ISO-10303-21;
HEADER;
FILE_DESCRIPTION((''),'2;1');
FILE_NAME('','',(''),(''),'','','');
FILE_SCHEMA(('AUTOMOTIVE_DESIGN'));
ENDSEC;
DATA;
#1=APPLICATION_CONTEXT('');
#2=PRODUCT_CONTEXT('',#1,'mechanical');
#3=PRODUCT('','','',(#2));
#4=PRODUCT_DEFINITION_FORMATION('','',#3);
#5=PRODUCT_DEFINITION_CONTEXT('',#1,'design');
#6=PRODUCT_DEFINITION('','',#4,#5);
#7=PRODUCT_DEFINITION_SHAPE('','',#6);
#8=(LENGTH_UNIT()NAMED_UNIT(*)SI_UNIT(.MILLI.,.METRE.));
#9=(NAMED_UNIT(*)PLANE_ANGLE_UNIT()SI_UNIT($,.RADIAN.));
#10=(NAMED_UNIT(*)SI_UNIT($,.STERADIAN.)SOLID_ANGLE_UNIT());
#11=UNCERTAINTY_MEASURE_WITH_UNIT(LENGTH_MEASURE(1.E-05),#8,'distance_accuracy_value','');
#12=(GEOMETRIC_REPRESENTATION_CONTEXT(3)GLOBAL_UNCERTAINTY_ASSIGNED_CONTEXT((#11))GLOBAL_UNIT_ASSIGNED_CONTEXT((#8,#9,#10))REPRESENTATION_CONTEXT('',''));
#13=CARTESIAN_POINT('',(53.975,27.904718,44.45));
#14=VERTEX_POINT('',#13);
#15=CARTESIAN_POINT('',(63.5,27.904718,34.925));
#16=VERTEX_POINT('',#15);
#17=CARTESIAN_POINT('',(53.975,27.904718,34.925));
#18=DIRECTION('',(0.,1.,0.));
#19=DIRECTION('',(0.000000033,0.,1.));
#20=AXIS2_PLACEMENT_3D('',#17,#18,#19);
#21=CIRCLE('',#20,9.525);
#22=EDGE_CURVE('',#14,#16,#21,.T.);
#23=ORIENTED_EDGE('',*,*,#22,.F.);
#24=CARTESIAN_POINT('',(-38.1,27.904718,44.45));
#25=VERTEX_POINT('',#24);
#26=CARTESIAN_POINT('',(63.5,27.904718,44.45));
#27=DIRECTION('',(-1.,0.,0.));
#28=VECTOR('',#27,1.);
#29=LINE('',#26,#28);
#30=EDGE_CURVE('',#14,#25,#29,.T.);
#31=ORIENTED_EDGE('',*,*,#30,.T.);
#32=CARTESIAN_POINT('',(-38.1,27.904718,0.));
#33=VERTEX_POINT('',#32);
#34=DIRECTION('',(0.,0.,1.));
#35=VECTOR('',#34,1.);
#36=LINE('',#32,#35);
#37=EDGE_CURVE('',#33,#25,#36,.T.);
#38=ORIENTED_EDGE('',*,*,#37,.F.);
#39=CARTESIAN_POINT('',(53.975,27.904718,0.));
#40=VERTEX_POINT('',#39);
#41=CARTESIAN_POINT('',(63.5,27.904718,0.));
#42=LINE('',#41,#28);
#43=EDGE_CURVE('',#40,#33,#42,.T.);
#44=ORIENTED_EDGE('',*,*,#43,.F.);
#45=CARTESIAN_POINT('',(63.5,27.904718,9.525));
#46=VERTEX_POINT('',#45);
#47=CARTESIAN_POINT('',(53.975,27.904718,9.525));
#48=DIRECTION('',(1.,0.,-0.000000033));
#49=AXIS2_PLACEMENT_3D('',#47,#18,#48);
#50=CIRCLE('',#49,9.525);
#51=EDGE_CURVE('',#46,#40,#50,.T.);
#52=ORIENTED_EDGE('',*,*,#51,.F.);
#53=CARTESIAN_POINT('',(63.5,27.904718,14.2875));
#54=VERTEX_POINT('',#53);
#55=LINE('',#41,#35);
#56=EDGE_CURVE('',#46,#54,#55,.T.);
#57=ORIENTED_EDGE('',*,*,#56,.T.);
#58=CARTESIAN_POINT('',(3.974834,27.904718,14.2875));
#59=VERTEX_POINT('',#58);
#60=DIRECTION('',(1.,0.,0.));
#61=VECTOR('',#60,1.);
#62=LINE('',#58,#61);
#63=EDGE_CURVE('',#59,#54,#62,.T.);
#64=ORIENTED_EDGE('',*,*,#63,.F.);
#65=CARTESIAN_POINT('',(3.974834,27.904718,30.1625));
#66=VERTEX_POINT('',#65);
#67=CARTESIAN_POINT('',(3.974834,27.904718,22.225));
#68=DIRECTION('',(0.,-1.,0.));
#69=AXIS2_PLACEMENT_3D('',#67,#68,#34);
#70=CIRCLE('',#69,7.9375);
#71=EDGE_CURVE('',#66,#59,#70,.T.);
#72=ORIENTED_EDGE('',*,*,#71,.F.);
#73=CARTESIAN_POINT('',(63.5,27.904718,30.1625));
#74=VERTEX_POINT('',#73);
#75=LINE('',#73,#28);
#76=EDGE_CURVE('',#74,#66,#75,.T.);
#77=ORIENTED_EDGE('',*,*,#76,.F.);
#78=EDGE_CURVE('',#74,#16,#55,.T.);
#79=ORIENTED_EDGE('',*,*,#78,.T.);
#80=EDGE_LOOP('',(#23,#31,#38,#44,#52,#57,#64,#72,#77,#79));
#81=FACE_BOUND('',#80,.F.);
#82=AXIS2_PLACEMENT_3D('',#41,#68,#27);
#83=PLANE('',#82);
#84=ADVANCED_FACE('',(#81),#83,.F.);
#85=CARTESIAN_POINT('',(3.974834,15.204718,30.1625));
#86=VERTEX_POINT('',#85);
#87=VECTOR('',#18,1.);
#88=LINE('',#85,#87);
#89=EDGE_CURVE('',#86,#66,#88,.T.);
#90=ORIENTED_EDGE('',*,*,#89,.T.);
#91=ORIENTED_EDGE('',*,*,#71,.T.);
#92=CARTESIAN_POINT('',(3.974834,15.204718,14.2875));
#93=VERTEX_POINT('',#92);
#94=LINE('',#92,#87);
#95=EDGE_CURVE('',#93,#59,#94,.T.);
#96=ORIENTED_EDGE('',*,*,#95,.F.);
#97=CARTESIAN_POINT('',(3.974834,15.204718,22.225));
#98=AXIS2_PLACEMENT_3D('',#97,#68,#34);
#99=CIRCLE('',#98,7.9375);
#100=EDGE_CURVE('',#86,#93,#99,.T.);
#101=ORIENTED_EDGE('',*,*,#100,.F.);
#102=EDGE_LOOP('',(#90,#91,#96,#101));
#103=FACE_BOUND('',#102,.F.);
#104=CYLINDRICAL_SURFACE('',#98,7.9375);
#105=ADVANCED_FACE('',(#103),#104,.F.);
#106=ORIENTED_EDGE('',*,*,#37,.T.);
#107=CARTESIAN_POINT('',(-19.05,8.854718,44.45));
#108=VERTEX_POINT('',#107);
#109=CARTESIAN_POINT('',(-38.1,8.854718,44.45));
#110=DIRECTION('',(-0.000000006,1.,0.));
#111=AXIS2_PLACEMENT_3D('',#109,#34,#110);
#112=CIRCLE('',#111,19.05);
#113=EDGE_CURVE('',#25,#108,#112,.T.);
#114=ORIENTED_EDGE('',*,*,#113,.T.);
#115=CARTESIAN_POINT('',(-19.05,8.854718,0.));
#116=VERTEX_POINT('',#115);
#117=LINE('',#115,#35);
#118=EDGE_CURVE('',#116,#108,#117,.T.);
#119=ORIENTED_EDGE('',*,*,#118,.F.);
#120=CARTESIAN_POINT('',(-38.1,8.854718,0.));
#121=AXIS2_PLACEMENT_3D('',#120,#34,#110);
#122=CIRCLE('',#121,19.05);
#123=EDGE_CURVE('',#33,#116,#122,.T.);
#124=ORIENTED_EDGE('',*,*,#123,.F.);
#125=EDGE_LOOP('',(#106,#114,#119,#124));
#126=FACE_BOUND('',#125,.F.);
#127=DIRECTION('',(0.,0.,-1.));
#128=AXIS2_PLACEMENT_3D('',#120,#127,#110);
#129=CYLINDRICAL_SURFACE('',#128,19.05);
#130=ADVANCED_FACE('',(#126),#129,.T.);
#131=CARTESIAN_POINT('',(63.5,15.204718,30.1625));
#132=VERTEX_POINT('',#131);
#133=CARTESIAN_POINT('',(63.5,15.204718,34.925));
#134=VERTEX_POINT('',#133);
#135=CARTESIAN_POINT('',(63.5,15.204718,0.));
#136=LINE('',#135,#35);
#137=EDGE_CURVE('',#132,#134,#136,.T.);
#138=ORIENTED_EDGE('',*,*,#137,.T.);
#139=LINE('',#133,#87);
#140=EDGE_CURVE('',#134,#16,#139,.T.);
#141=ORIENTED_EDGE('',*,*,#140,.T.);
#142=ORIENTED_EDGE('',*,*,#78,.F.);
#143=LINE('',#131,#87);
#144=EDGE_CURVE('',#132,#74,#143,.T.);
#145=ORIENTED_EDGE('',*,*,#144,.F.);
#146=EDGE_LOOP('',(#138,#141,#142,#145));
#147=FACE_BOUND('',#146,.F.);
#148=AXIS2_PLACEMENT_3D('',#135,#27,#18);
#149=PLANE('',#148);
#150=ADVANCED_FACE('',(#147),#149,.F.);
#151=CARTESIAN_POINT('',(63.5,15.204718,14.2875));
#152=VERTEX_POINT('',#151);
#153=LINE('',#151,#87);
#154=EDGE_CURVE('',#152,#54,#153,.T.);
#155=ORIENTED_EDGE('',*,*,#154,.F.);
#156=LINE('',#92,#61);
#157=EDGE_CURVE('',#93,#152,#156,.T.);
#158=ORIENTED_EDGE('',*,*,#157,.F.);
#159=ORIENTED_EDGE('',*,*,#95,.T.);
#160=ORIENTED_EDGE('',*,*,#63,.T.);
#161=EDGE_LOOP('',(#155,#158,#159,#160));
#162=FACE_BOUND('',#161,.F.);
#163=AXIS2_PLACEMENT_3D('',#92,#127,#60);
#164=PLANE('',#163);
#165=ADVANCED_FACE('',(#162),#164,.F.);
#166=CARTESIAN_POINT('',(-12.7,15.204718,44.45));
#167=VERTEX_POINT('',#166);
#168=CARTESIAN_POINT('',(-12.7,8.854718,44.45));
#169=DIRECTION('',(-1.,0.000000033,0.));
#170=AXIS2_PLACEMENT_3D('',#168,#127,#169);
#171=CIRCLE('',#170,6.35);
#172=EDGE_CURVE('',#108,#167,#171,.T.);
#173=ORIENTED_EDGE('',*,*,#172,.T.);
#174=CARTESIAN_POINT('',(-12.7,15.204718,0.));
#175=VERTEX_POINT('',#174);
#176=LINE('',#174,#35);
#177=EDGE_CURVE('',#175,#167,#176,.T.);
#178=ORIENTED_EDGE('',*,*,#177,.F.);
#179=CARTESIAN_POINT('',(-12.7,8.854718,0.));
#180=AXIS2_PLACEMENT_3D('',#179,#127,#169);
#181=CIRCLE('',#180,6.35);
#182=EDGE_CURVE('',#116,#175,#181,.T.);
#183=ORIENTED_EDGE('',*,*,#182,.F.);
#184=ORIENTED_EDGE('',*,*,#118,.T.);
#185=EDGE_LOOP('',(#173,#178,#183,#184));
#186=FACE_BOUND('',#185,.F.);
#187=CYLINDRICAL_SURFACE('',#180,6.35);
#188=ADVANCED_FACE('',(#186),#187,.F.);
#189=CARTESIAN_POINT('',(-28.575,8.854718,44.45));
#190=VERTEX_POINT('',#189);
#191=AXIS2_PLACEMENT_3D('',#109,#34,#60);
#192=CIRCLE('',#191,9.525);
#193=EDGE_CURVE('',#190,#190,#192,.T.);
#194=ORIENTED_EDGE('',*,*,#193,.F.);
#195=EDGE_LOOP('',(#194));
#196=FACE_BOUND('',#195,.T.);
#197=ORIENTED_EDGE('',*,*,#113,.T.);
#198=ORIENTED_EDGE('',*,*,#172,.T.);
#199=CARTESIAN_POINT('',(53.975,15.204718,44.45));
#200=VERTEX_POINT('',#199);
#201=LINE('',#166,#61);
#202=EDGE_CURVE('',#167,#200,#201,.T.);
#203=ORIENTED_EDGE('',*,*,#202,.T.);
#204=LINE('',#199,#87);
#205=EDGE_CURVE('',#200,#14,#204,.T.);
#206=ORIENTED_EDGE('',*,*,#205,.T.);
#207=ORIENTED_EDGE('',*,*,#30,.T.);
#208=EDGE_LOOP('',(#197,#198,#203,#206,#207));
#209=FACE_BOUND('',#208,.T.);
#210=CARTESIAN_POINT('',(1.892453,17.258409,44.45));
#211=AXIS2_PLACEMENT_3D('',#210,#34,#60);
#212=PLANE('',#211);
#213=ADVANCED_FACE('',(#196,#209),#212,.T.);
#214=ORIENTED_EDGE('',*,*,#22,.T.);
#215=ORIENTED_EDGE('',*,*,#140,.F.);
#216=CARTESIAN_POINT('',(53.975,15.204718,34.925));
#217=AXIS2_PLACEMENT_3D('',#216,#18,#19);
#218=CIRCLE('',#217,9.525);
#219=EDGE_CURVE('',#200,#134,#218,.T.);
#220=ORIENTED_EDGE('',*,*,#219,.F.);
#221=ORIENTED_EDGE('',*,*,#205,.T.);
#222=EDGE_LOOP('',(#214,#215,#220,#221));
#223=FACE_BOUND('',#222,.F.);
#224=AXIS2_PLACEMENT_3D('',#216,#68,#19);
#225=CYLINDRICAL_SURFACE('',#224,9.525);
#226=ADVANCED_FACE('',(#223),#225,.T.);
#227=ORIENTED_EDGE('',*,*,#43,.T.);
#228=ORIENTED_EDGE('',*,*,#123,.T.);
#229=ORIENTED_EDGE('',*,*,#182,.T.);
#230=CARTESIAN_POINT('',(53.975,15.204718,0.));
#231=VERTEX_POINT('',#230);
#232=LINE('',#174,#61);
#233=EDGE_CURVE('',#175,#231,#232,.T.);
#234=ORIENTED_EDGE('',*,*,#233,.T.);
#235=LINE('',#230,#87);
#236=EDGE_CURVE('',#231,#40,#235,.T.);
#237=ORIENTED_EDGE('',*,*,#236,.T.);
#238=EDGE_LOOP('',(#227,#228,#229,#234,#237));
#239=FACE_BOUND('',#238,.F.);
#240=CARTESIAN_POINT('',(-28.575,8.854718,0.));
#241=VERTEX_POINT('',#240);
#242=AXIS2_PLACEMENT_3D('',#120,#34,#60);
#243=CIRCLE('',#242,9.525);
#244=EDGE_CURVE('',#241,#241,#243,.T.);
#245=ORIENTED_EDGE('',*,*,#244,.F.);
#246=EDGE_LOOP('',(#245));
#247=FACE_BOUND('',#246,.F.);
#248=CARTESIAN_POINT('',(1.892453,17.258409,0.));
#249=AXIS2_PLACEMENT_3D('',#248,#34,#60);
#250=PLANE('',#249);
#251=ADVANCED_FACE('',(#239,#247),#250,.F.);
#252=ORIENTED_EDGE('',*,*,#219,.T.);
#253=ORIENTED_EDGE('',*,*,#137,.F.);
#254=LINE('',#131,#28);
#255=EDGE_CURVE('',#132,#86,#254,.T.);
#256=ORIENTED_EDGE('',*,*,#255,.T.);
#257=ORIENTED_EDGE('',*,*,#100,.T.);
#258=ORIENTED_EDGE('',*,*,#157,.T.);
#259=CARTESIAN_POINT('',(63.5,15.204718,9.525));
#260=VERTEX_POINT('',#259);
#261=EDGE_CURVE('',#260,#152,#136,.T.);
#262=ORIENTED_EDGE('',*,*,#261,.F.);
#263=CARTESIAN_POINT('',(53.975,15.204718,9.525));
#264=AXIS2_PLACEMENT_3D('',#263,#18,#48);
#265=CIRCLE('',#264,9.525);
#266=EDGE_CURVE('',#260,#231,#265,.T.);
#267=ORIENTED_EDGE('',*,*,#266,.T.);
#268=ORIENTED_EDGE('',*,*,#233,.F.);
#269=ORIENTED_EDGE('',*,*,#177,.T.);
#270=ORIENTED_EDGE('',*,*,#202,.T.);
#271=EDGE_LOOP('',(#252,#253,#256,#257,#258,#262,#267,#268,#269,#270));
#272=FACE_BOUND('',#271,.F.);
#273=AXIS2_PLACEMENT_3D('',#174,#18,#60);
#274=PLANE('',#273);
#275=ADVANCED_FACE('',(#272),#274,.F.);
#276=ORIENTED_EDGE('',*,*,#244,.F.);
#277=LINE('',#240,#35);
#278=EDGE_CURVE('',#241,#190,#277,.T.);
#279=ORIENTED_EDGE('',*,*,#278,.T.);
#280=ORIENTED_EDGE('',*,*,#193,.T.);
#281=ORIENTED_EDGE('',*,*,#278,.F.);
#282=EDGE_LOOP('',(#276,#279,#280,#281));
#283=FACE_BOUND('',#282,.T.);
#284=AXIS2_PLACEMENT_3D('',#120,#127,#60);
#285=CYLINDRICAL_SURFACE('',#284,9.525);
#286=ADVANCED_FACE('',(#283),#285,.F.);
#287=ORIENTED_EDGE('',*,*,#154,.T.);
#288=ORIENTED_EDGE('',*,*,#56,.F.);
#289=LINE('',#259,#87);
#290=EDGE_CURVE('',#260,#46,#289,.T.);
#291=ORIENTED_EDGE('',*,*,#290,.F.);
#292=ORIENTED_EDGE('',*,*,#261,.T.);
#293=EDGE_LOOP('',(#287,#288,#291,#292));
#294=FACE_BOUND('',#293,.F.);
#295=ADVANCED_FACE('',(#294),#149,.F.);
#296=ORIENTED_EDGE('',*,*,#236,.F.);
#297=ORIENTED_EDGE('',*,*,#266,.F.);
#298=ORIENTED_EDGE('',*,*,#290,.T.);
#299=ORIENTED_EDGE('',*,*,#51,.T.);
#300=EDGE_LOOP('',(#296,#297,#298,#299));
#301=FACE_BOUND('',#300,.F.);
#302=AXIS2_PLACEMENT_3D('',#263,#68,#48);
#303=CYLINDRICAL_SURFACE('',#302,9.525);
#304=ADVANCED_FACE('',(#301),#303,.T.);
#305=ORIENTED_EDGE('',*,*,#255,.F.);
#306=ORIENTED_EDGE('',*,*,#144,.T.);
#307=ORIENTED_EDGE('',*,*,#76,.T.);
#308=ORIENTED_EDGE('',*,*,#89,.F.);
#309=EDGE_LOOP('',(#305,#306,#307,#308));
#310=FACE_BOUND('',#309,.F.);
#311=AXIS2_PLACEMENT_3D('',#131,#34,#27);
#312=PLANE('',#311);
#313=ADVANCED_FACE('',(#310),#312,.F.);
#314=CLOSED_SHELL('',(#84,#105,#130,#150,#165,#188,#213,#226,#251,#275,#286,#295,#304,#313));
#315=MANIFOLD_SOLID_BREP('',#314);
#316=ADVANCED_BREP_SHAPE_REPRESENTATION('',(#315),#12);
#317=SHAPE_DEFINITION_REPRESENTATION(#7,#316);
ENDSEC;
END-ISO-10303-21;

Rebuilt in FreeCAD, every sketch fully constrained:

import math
import FreeCAD as App
import Part
import Sketcher

V = App.Vector
Q = App.Units.Quantity

doc = App.newDocument("Part")
body = doc.addObject("PartDesign::Body", "Body")

# Sketch on XY plane
sketch1 = body.newObject("Sketcher::SketchObject", "Sketch")
sketch1.AttachmentSupport = (doc.getObject("XY_Plane"), [""])
sketch1.MapMode = "FlatFace"
sketch1.addGeometry([
    Part.LineSegment(V(64, 28, 0), V(-38, 28, 0)),  # 0
    Part.ArcOfCircle(Part.Circle(V(-38, 9, 0), V(0, 0, 1), 19), math.radians(90), math.radians(360)),  # 1
    Part.ArcOfCircle(Part.Circle(V(-13, 9, 0), V(0, 0, 1), 6), math.radians(90), math.radians(180)),  # 2
    Part.LineSegment(V(-13, 15, 0), V(64, 15, 0)),  # 3
    Part.LineSegment(V(64, 15, 0), V(64, 28, 0)),  # 4
    Part.Circle(V(-38, 9, 0), V(0, 0, 1), 10),  # 5
], False)
sketch1.addConstraint([
    Sketcher.Constraint("Tangent", 0, 2, 1, 1),
    Sketcher.Constraint("Tangent", 1, 2, 2, 2),
    Sketcher.Constraint("Tangent", 2, 1, 3, 1),
    Sketcher.Constraint("Coincident", 3, 2, 4, 1),
    Sketcher.Constraint("Coincident", 4, 2, 0, 1),
    Sketcher.Constraint("Horizontal", 0),
    Sketcher.Constraint("Horizontal", 3),
    Sketcher.Constraint("Vertical", 4),
    Sketcher.Constraint("Coincident", 5, 3, 1, 3),
    Sketcher.Constraint("Horizontal", 1, 3, 2, 3),
    Sketcher.Constraint("Diameter", 5, Q("0.75 in")),
    Sketcher.Constraint("DistanceX", 0, 2, 0, 1, Q("4 in")),
    Sketcher.Constraint("DistanceX", 3, 1, 3, 2, Q("3 in")),
    Sketcher.Constraint("Radius", 1, Q("0.75 in")),
    Sketcher.Constraint("DistanceX", 1, 3, -1, 1, Q("1.5 in")),
    Sketcher.Constraint("DistanceY", -1, 1, 1, 3, 8.854718),
])
pad1 = body.newObject("PartDesign::Pad", "Pad")
pad1.Profile = sketch1
pad1.Length = Q("1.75 in")

# Sketch on XZ plane
sketch2 = body.newObject("Sketcher::SketchObject", "Sketch001")
sketch2.AttachmentSupport = (doc.getObject("XZ_Plane"), [""])
sketch2.MapMode = "FlatFace"
sketch2.AttachmentOffset = App.Placement(V(0, 0, -15.204718), App.Rotation())
sketch2.addGeometry([
    Part.LineSegment(V(64, 30, 0), V(4, 30, 0)),  # 0
    Part.ArcOfCircle(Part.Circle(V(4, 22, 0), V(0, 0, 1), 8), math.radians(90), math.radians(270)),  # 1
    Part.LineSegment(V(4, 14, 0), V(64, 14, 0)),  # 2
    Part.LineSegment(V(64, 14, 0), V(64, 30, 0)),  # 3
    Part.ArcOfCircle(Part.Circle(V(54, 35, 0), V(0, 0, 1), 10), math.radians(0), math.radians(90)),  # 4
    Part.LineSegment(V(64, 35, 0), V(64, 44, 0)),  # 5
    Part.LineSegment(V(64, 44, 0), V(54, 44, 0)),  # 6
    Part.LineSegment(V(64, 0, 0), V(64, 10, 0)),  # 7
    Part.ArcOfCircle(Part.Circle(V(54, 10, 0), V(0, 0, 1), 10), math.radians(-90), math.radians(0)),  # 8
    Part.LineSegment(V(54, 0, 0), V(64, 0, 0)),  # 9
], False)
sketch2.addConstraint([
    Sketcher.Constraint("Tangent", 0, 2, 1, 1),
    Sketcher.Constraint("Tangent", 1, 2, 2, 1),
    Sketcher.Constraint("Coincident", 2, 2, 3, 1),
    Sketcher.Constraint("Coincident", 3, 2, 0, 1),
    Sketcher.Constraint("Tangent", 4, 1, 5, 1),
    Sketcher.Constraint("Coincident", 5, 2, 6, 1),
    Sketcher.Constraint("Tangent", 6, 2, 4, 2),
    Sketcher.Constraint("Tangent", 7, 2, 8, 2),
    Sketcher.Constraint("Tangent", 8, 1, 9, 1),
    Sketcher.Constraint("Coincident", 9, 2, 7, 1),
    Sketcher.Constraint("Horizontal", 0),
    Sketcher.Constraint("Horizontal", 2),
    Sketcher.Constraint("Vertical", 3),
    Sketcher.Constraint("Vertical", 5),
    Sketcher.Constraint("Horizontal", 6),
    Sketcher.Constraint("Vertical", 7),
    Sketcher.Constraint("Horizontal", 9),
    Sketcher.Constraint("Equal", 4, 8),
    Sketcher.Constraint("PointOnObject", 8, 1, -1),
    Sketcher.Constraint("Vertical", 4, 3, 8, 3),
    Sketcher.Constraint("Vertical", 3, 2, 4, 1),
    Sketcher.Constraint("Radius", 1, Q("0.3125 in")),
    Sketcher.Constraint("Radius", 4, Q("0.375 in")),
    Sketcher.Constraint("DistanceY", 8, 3, 4, 3, Q("1 in")),
    Sketcher.Constraint("DistanceX", -1, 1, 2, 2, Q("2.5 in")),
    Sketcher.Constraint("DistanceY", 1, 3, 4, 3, Q("0.5 in")),
    Sketcher.Constraint("DistanceX", 0, 2, 0, 1, 59.525166),
])
pocket1 = body.newObject("PartDesign::Pocket", "Pocket")
pocket1.Profile = sketch2
pocket1.Length = Q("0.5 in")

doc.recompute()
